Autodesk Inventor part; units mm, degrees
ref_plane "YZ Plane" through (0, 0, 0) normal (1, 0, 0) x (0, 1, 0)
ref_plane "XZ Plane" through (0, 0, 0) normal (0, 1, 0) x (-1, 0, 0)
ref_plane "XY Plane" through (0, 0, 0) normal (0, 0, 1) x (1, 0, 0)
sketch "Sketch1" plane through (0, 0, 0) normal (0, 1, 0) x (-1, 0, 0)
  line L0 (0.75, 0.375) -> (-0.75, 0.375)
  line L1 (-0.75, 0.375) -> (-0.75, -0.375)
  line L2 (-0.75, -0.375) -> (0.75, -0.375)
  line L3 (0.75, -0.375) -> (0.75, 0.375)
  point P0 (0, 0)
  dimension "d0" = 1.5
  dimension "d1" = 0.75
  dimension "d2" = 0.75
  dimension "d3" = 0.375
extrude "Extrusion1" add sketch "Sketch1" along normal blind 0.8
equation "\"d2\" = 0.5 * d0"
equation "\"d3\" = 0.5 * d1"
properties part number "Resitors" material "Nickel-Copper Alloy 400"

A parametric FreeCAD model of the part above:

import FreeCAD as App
import Part
import Sketcher

V = App.Vector


def add_polygon(sketch, points):
    """Adds a closed chain of lines whose ends are joined by coincident constraints."""
    first, n = sketch.GeometryCount, len(points)
    for a, b in zip(points, points[1:] + points[:1]):
        sketch.addGeometry(Part.LineSegment(App.Vector(*a, 0), App.Vector(*b, 0)), False)
    for i in range(n):
        sketch.addConstraint(Sketcher.Constraint("Coincident", first + i, 2, first + (i + 1) % n, 1))

doc = App.newDocument("Part")
params = doc.addObject("Spreadsheet::Sheet", "Params")
for row, (alias, value) in enumerate([
    ("sketch1_width", "1.5 mm"),
    ("sketch1_height", "0.75 mm"),
    ("pad1_length", "0.8 mm"),
], start=1):
    params.set(f"A{row}", alias)
    params.set(f"B{row}", "=" + value)
    params.setAlias(f"B{row}", alias)

body = doc.addObject("PartDesign::Body", "Body")

# Sketch on XZ plane
sketch1 = body.newObject("Sketcher::SketchObject", "Sketch")
sketch1.AttachmentSupport = (doc.getObject("XZ_Plane"), [""])
sketch1.MapMode = "FlatFace"
add_polygon(sketch1, [(-0.8, -0.4), (-0.8, 0.4), (0.8, 0.4), (0.8, -0.4)])  # lines 0-3
sketch1.addConstraint([
    Sketcher.Constraint("Vertical", 0),
    Sketcher.Constraint("Horizontal", 1),
    Sketcher.Constraint("Vertical", 2),
    Sketcher.Constraint("Horizontal", 3),
    Sketcher.Constraint("Symmetric", 0, 2, 2, 2, -1, 1),
    Sketcher.Constraint("DistanceX", 1, 1, 1, 2, 1.5),
    Sketcher.Constraint("DistanceY", 0, 1, 0, 2, 0.75),
])
sketch1.setExpression("Constraints[9]", "Params.sketch1_width")
sketch1.setExpression("Constraints[10]", "Params.sketch1_height")
pad1 = body.newObject("PartDesign::Pad", "Pad")
pad1.Profile = sketch1
pad1.setExpression("Length", "Params.pad1_length")
pad1.Reversed = True

doc.recompute()
